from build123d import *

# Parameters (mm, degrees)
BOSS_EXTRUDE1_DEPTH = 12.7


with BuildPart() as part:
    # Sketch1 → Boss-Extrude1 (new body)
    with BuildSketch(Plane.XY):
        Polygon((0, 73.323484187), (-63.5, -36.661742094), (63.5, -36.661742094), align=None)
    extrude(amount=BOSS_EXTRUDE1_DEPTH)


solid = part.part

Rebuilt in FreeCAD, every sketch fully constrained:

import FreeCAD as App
import Part
import Sketcher
from FreeCAD import Vector
Q = App.Units.Quantity

doc = App.newDocument("Part")
body = doc.addObject("PartDesign::Body", "Body")

# Sketch on XY plane
sketch1 = body.newObject("Sketcher::SketchObject", "Sketch")
sketch1.AttachmentSupport = (doc.getObject("XY_Plane"), [""])
sketch1.MapMode = "FlatFace"
sketch1.addGeometry(Part.LineSegment(Vector(0, 73, 0), Vector(-64, -37, 0)), False)
sketch1.addGeometry(Part.LineSegment(Vector(-64, -37, 0), Vector(64, -37, 0)), False)
sketch1.addGeometry(Part.LineSegment(Vector(64, -37, 0), Vector(0, 73, 0)), False)
sketch1.addConstraint(Sketcher.Constraint("Coincident", 0, 2, 1, 1))
sketch1.addConstraint(Sketcher.Constraint("Coincident", 1, 2, 2, 1))
sketch1.addConstraint(Sketcher.Constraint("Coincident", 2, 2, 0, 1))
sketch1.addConstraint(Sketcher.Constraint("Horizontal", 1))
sketch1.addConstraint(Sketcher.Constraint("PointOnObject", 2, 2, -2))
sketch1.addConstraint(Sketcher.Constraint("Equal", 0, 2))
sketch1.addConstraint(Sketcher.Constraint("DistanceX", 1, 1, 1, 2, Q("5 in")))
sketch1.addConstraint(Sketcher.Constraint("Distance", 0, Q("5 in")))
sketch1.addConstraint(Sketcher.Constraint("DistanceY", 0, 2, -1, 1, 36.661742))
pad1 = body.newObject("PartDesign::Pad", "Pad")
pad1.Profile = sketch1
pad1.Length = Q("0.5 in")

doc.recompute()
